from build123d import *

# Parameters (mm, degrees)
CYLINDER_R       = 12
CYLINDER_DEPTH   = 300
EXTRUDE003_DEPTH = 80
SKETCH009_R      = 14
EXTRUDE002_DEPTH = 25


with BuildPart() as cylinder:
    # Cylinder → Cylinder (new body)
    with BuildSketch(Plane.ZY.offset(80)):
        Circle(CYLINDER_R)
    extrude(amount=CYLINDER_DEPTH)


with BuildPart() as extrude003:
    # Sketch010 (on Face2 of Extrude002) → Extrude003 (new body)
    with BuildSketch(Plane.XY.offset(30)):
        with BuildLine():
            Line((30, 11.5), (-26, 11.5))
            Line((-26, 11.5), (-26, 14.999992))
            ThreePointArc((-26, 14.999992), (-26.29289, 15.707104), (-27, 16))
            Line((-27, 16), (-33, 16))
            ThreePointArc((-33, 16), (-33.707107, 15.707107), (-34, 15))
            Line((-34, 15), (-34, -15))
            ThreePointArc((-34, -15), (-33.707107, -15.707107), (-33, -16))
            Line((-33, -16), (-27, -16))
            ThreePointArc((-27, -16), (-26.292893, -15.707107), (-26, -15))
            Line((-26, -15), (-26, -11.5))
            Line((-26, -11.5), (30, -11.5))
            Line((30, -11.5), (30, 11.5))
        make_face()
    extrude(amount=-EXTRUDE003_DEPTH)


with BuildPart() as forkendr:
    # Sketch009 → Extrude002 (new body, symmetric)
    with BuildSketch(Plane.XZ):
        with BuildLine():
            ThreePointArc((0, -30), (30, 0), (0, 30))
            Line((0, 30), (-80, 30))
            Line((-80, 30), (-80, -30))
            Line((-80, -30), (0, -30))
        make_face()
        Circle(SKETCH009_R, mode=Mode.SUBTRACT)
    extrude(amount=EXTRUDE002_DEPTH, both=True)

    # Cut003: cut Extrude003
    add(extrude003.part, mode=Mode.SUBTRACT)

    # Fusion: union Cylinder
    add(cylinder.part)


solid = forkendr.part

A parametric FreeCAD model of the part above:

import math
import FreeCAD as App
import Part
import Sketcher
Q = App.Units.Quantity

doc = App.newDocument("Part")
body = doc.addObject("PartDesign::Body", "Body")

# Sketch on YZ plane
sketch1 = body.newObject("Sketcher::SketchObject", "Sketch")
sketch1.AttachmentSupport = (doc.getObject("YZ_Plane"), [""])
sketch1.MapMode = "FlatFace"
sketch1.AttachmentOffset = App.Placement(App.Vector(0, 0, -80), App.Rotation())
sketch1.addGeometry(Part.Circle(App.Vector(0, 0, 0), App.Vector(0, 0, 1), 12), False)
sketch1.addConstraint(Sketcher.Constraint("Coincident", 0, 3, -1, 1))
sketch1.addConstraint(Sketcher.Constraint("Diameter", 0, Q("24 mm")))
pad1 = body.newObject("PartDesign::Pad", "Pad")
pad1.Profile = sketch1
pad1.Length = 300
pad1.Reversed = True
body2 = doc.addObject("PartDesign::Body", "Body001")

# Sketch on XY plane
sketch2 = body2.newObject("Sketcher::SketchObject", "Sketch001")
sketch2.AttachmentSupport = (doc.getObject("XY_Plane001"), [""])
sketch2.MapMode = "FlatFace"
sketch2.AttachmentOffset = App.Placement(App.Vector(0, 0, 30), App.Rotation())
sketch2.addGeometry(Part.LineSegment(App.Vector(30, 11.5, 0), App.Vector(-26, 11.5, 0)), False)
sketch2.addGeometry(Part.LineSegment(App.Vector(-26, 11.5, 0), App.Vector(-26, 14.999992, 0)), False)
sketch2.addGeometry(Part.ArcOfCircle(Part.Circle(App.Vector(-26.999999, 15.000001, 0), App.Vector(0, 0, 1), 0.999999), math.radians(-0.000501), math.radians(90.000043)), False)
sketch2.addGeometry(Part.LineSegment(App.Vector(-27, 16, 0), App.Vector(-33, 16, 0)), False)
sketch2.addGeometry(Part.ArcOfCircle(Part.Circle(App.Vector(-33.000001, 15.000001, 0), App.Vector(0, 0, 1), 0.999999), math.radians(89.999957), math.radians(180.000043)), False)
sketch2.addGeometry(Part.LineSegment(App.Vector(-34, 15, 0), App.Vector(-34, -15, 0)), False)
sketch2.addGeometry(Part.ArcOfCircle(Part.Circle(App.Vector(-33.000001, -15.000001, 0), App.Vector(0, 0, 1), 0.999999), math.radians(179.999957), math.radians(270.000043)), False)
sketch2.addGeometry(Part.LineSegment(App.Vector(-33, -16, 0), App.Vector(-27, -16, 0)), False)
sketch2.addGeometry(Part.ArcOfCircle(Part.Circle(App.Vector(-26.999999, -15.000001, 0), App.Vector(0, 0, 1), 0.999999), math.radians(-90.000043), math.radians(0.000043)), False)
sketch2.addGeometry(Part.LineSegment(App.Vector(-26, -15, 0), App.Vector(-26, -11.5, 0)), False)
sketch2.addGeometry(Part.LineSegment(App.Vector(-26, -11.5, 0), App.Vector(30, -11.5, 0)), False)
sketch2.addGeometry(Part.LineSegment(App.Vector(30, -11.5, 0), App.Vector(30, 11.5, 0)), False)
sketch2.addConstraint(Sketcher.Constraint("Coincident", 0, 2, 1, 1))
sketch2.addConstraint(Sketcher.Constraint("Coincident", 1, 2, 2, 1))
sketch2.addConstraint(Sketcher.Constraint("Tangent", 2, 2, 3, 1))
sketch2.addConstraint(Sketcher.Constraint("Tangent", 3, 2, 4, 1))
sketch2.addConstraint(Sketcher.Constraint("Tangent", 4, 2, 5, 1))
sketch2.addConstraint(Sketcher.Constraint("Tangent", 5, 2, 6, 1))
sketch2.addConstraint(Sketcher.Constraint("Tangent", 6, 2, 7, 1))
sketch2.addConstraint(Sketcher.Constraint("Tangent", 7, 2, 8, 1))
sketch2.addConstraint(Sketcher.Constraint("Tangent", 8, 2, 9, 1))
sketch2.addConstraint(Sketcher.Constraint("Coincident", 9, 2, 10, 1))
sketch2.addConstraint(Sketcher.Constraint("Coincident", 10, 2, 11, 1))
sketch2.addConstraint(Sketcher.Constraint("Coincident", 11, 2, 0, 1))
sketch2.addConstraint(Sketcher.Constraint("Horizontal", 0))
sketch2.addConstraint(Sketcher.Constraint("Vertical", 1))
sketch2.addConstraint(Sketcher.Constraint("Horizontal", 3))
sketch2.addConstraint(Sketcher.Constraint("Vertical", 5))
sketch2.addConstraint(Sketcher.Constraint("Horizontal", 7))
sketch2.addConstraint(Sketcher.Constraint("Vertical", 9))
sketch2.addConstraint(Sketcher.Constraint("Horizontal", 10))
sketch2.addConstraint(Sketcher.Constraint("Vertical", 11))
sketch2.addConstraint(Sketcher.Constraint("Equal", 2, 4))
sketch2.addConstraint(Sketcher.Constraint("Equal", 4, 6))
sketch2.addConstraint(Sketcher.Constraint("Equal", 6, 8))
sketch2.addConstraint(Sketcher.Constraint("Symmetric", 2, 3, 8, 3, -1))
sketch2.addConstraint(Sketcher.Constraint("Radius", 2, Q("0.999999 mm")))
sketch2.addConstraint(Sketcher.Constraint("DistanceX", 0, 2, 0, 1, Q("56 mm")))
sketch2.addConstraint(Sketcher.Constraint("DistanceX", 3, 2, 3, 1, Q("6 mm")))
sketch2.addConstraint(Sketcher.Constraint("DistanceY", 5, 2, 5, 1, Q("30 mm")))
sketch2.addConstraint(Sketcher.Constraint("DistanceY", 11, 1, 11, 2, Q("23 mm")))
sketch2.addConstraint(Sketcher.Constraint("DistanceY", 9, 1, 9, 2, Q("3.5 mm")))
sketch2.addConstraint(Sketcher.Constraint("DistanceX", 2, 3, -1, 1, Q("26.999999 mm")))
sketch2.addConstraint(Sketcher.Constraint("DistanceY", 1, 1, 1, 2, Q("3.499992 mm")))
pad2 = body2.newObject("PartDesign::Pad", "Pad001")
pad2.Profile = sketch2
pad2.Length = 80
pad2.Reversed = True
body3 = doc.addObject("PartDesign::Body", "Body002")

# Sketch on XZ plane
sketch3 = body3.newObject("Sketcher::SketchObject", "Sketch002")
sketch3.AttachmentSupport = (doc.getObject("XZ_Plane002"), [""])
sketch3.MapMode = "FlatFace"
sketch3.addGeometry(Part.ArcOfCircle(Part.Circle(App.Vector(0, 0, 0), App.Vector(0, 0, 1), 30), math.radians(-90), math.radians(90)), False)
sketch3.addGeometry(Part.LineSegment(App.Vector(0, 30, 0), App.Vector(-80, 30, 0)), False)
sketch3.addGeometry(Part.LineSegment(App.Vector(-80, 30, 0), App.Vector(-80, -30, 0)), False)
sketch3.addGeometry(Part.LineSegment(App.Vector(-80, -30, 0), App.Vector(0, -30, 0)), False)
sketch3.addGeometry(Part.Circle(App.Vector(0, 0, 0), App.Vector(0, 0, 1), 14), False)
sketch3.addConstraint(Sketcher.Constraint("Tangent", 0, 2, 1, 1))
sketch3.addConstraint(Sketcher.Constraint("Coincident", 1, 2, 2, 1))
sketch3.addConstraint(Sketcher.Constraint("Coincident", 2, 2, 3, 1))
sketch3.addConstraint(Sketcher.Constraint("Tangent", 3, 2, 0, 1))
sketch3.addConstraint(Sketcher.Constraint("Horizontal", 1))
sketch3.addConstraint(Sketcher.Constraint("Vertical", 2))
sketch3.addConstraint(Sketcher.Constraint("Horizontal", 3))
sketch3.addConstraint(Sketcher.Constraint("Coincident", 0, 3, -1, 1))
sketch3.addConstraint(Sketcher.Constraint("Coincident", 4, 3, -1, 1))
sketch3.addConstraint(Sketcher.Constraint("Diameter", 4, Q("28 mm")))
sketch3.addConstraint(Sketcher.Constraint("Radius", 0, Q("30 mm")))
sketch3.addConstraint(Sketcher.Constraint("DistanceX", 1, 2, 1, 1, Q("80 mm")))
pad3 = body3.newObject("PartDesign::Pad", "Pad002")
pad3.Profile = sketch3
pad3.Length = 50
pad3.Midplane = True
doc.recompute()

boolean = body3.newObject("PartDesign::Boolean", "Boolean")
boolean.Type = "Cut"
boolean.addObjects([body2])
doc.recompute()

boolean2 = body3.newObject("PartDesign::Boolean", "Boolean001")
boolean2.Type = "Fuse"
boolean2.addObjects([body])

doc.recompute()
